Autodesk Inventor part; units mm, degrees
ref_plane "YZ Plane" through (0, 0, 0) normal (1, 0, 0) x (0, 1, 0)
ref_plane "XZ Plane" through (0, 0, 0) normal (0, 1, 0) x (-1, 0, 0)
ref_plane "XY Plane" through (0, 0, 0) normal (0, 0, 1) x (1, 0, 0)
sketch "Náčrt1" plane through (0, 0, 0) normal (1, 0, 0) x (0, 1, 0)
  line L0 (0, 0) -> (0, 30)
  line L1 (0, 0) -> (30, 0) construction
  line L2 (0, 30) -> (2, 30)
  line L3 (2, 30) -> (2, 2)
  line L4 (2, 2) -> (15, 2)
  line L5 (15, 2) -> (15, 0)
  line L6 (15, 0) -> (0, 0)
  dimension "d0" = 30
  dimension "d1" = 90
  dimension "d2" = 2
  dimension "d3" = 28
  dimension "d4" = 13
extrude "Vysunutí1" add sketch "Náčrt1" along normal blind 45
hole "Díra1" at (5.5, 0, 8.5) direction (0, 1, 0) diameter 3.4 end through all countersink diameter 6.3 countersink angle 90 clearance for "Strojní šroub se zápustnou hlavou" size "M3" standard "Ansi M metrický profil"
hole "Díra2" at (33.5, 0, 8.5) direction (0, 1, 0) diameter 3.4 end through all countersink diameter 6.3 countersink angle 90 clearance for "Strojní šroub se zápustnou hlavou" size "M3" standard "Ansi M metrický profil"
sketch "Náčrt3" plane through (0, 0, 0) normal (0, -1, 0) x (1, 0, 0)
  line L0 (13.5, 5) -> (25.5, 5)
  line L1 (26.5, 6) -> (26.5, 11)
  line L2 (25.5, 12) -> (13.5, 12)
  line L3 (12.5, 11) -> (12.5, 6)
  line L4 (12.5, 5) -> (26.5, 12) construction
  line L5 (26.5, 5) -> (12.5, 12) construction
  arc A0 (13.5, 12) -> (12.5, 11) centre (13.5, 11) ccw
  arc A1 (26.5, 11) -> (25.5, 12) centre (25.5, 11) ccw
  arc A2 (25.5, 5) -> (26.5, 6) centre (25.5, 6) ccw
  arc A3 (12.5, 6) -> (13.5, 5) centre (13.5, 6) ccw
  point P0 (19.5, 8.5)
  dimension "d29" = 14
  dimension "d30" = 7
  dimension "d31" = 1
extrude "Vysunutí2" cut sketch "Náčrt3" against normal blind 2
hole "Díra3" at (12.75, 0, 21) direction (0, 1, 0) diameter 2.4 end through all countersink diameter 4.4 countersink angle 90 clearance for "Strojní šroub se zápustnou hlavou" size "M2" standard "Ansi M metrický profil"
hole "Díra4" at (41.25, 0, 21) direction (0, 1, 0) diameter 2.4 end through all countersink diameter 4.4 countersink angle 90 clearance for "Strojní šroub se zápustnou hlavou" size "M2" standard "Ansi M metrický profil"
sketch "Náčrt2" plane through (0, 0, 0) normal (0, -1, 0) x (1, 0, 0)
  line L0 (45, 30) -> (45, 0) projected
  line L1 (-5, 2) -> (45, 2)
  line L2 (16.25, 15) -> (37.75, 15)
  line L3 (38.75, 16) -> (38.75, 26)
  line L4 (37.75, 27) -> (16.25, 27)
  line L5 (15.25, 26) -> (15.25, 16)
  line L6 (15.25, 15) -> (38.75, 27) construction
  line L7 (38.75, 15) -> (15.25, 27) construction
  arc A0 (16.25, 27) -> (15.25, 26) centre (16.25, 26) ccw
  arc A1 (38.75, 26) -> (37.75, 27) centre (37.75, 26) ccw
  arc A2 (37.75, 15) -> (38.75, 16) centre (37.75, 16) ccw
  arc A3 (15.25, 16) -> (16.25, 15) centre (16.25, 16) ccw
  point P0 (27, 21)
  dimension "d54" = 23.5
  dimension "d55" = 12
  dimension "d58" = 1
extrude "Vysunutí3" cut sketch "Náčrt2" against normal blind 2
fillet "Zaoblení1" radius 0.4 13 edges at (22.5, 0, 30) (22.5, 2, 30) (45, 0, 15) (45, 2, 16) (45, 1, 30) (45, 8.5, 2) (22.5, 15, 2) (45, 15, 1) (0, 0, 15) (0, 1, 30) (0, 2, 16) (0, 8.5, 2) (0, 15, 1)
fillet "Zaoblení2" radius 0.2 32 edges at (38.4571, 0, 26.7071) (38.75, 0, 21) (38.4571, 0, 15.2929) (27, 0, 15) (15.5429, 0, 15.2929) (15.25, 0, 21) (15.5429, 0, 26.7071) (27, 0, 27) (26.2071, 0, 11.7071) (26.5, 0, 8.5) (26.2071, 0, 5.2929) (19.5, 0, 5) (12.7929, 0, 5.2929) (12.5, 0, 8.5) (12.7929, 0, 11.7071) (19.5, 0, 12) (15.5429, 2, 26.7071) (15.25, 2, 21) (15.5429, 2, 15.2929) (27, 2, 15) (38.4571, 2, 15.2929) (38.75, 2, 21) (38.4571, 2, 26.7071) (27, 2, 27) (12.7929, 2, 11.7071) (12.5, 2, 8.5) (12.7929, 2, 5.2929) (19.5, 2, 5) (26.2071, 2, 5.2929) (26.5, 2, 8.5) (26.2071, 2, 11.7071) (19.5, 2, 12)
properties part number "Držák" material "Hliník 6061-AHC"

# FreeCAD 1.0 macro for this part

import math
import FreeCAD as App
import Part
import Sketcher


def edges_at(feature, points):
    """Names of the edges that pass closest to the given points."""
    edges = feature.Shape.Edges
    near = lambda p: min(range(len(edges)), key=lambda i: edges[i].distToShape(Part.Vertex(*p))[0])
    return sorted({f"Edge{near(p) + 1}" for p in points})


def add_polygon(sketch, points):
    """Adds a closed chain of lines whose ends are joined by coincident constraints."""
    first, n = sketch.GeometryCount, len(points)
    for a, b in zip(points, points[1:] + points[:1]):
        sketch.addGeometry(Part.LineSegment(App.Vector(*a, 0), App.Vector(*b, 0)), False)
    for i in range(n):
        sketch.addConstraint(Sketcher.Constraint("Coincident", first + i, 2, first + (i + 1) % n, 1))

doc = App.newDocument("Part")
params = doc.addObject("Spreadsheet::Sheet", "Params")
for row, (alias, value) in enumerate([
    ("sketch1_width", "13 mm"),
    ("sketch1_width2", "2 mm"),
    ("sketch1_height", "30 mm"),
    ("pad1_length", "45 mm"),
    ("sketch2_diameter", "3.4 mm"),
    ("hole_diameter", "3.4 mm"),
    ("hole_csink_diameter", "6.3 mm"),
    ("sketch3_diameter", "3.4 mm"),
    ("hole2_diameter", "3.4 mm"),
    ("hole2_csink_diameter", "6.3 mm"),
    ("sketch4_radius", "1 mm"),
    ("sketch4_width", "12 mm"),
    ("pocket1_length", "2 mm"),
    ("sketch5_diameter", "2.4 mm"),
    ("hole3_diameter", "2.4 mm"),
    ("hole3_csink_diameter", "4.4 mm"),
    ("sketch6_diameter", "2.4 mm"),
    ("hole4_diameter", "2.4 mm"),
    ("hole4_csink_diameter", "4.4 mm"),
    ("sketch7_radius", "1 mm"),
    ("sketch7_width", "21.5 mm"),
    ("pocket2_length", "2 mm"),
    ("fillet_radius", "0.4 mm"),
    ("fillet2_radius", "0.2 mm"),
], start=1):
    params.set(f"A{row}", alias)
    params.set(f"B{row}", "=" + value)
    params.setAlias(f"B{row}", alias)

body = doc.addObject("PartDesign::Body", "Body")

sketch1 = doc.addObject("Sketcher::SketchObject", "Sketch")
body.addObject(sketch1)
sketch1.AttachmentSupport = (doc.YZ_Plane, [""])
sketch1.MapMode = "FlatFace"
add_polygon(sketch1, [(0, 30), (0, 0), (15, 0), (15, 2), (2, 2), (2, 30)])
sketch1.addConstraint(Sketcher.Constraint("Vertical", 0))
sketch1.addConstraint(Sketcher.Constraint("Horizontal", 1))
sketch1.addConstraint(Sketcher.Constraint("Vertical", 2))
sketch1.addConstraint(Sketcher.Constraint("Horizontal", 3))
sketch1.addConstraint(Sketcher.Constraint("Vertical", 4))
sketch1.addConstraint(Sketcher.Constraint("Horizontal", 5))
sketch1.addConstraint(Sketcher.Constraint("Coincident", 0, 2, -1, 1))
sketch1.addConstraint(Sketcher.Constraint("Equal", 5, 2))
sketch1.addConstraint(Sketcher.Constraint("DistanceX", 3, 2, 3, 1, 13.0))
sketch1.addConstraint(Sketcher.Constraint("DistanceX", 5, 2, 5, 1, 2.0))
sketch1.addConstraint(Sketcher.Constraint("DistanceY", 0, 2, 0, 1, 30.0))
sketch1.setExpression("Constraints[14]", "Params.sketch1_width")
sketch1.setExpression("Constraints[15]", "Params.sketch1_width2")
sketch1.setExpression("Constraints[16]", "Params.sketch1_height")
pad1 = doc.addObject("PartDesign::Pad", "Pad")
body.addObject(pad1)
pad1.Profile = sketch1
pad1.setExpression("Length", "Params.pad1_length")

sketch2 = doc.addObject("Sketcher::SketchObject", "Sketch001")
body.addObject(sketch2)
sketch2.AttachmentSupport = (doc.XZ_Plane, [""])
sketch2.MapMode = "FlatFace"
sketch2.addGeometry(Part.Circle(App.Vector(5.5, 8.5, 0), App.Vector(0, 0, 1), 1.7), False)
sketch2.addConstraint(Sketcher.Constraint("Diameter", 0, 3.4))
sketch2.addConstraint(Sketcher.Constraint("DistanceX", -1, 1, 0, 3, 5.5))
sketch2.addConstraint(Sketcher.Constraint("DistanceY", -1, 1, 0, 3, 8.5))
sketch2.setExpression("Constraints[0]", "Params.sketch2_diameter")
doc.recompute()
hole = doc.addObject("PartDesign::Hole", "Hole")
body.addObject(hole)
hole.Profile = sketch2
hole.ThreadType = "None"
hole.setExpression("Diameter", "Params.hole_diameter")
hole.DepthType = "ThroughAll"
hole.HoleCutType = "Countersink"
hole.setExpression("HoleCutDiameter", "Params.hole_csink_diameter")
hole.HoleCutCountersinkAngle = 90

sketch3 = doc.addObject("Sketcher::SketchObject", "Sketch002")
body.addObject(sketch3)
sketch3.AttachmentSupport = (doc.XZ_Plane, [""])
sketch3.MapMode = "FlatFace"
sketch3.addGeometry(Part.Circle(App.Vector(33.5, 8.5, 0), App.Vector(0, 0, 1), 1.7), False)
sketch3.addConstraint(Sketcher.Constraint("Diameter", 0, 3.4))
sketch3.addConstraint(Sketcher.Constraint("DistanceX", -1, 1, 0, 3, 33.5))
sketch3.addConstraint(Sketcher.Constraint("DistanceY", -1, 1, 0, 3, 8.5))
sketch3.setExpression("Constraints[0]", "Params.sketch3_diameter")
doc.recompute()
hole2 = doc.addObject("PartDesign::Hole", "Hole001")
body.addObject(hole2)
hole2.Profile = sketch3
hole2.ThreadType = "None"
hole2.setExpression("Diameter", "Params.hole2_diameter")
hole2.DepthType = "ThroughAll"
hole2.HoleCutType = "Countersink"
hole2.setExpression("HoleCutDiameter", "Params.hole2_csink_diameter")
hole2.HoleCutCountersinkAngle = 90

sketch4 = doc.addObject("Sketcher::SketchObject", "Sketch003")
body.addObject(sketch4)
sketch4.AttachmentSupport = (doc.XZ_Plane, [""])
sketch4.MapMode = "FlatFace"
sketch4.addGeometry(Part.ArcOfCircle(Part.Circle(App.Vector(13.5, 6, 0), App.Vector(0, 0, 1), 1), math.radians(180), math.radians(270)), False)
sketch4.addGeometry(Part.LineSegment(App.Vector(13.5, 5, 0), App.Vector(25.5, 5, 0)), False)
sketch4.addGeometry(Part.ArcOfCircle(Part.Circle(App.Vector(25.5, 6, 0), App.Vector(0, 0, 1), 1), math.radians(-90), math.radians(0)), False)
sketch4.addGeometry(Part.LineSegment(App.Vector(26.5, 6, 0), App.Vector(26.5, 11, 0)), False)
sketch4.addGeometry(Part.ArcOfCircle(Part.Circle(App.Vector(25.5, 11, 0), App.Vector(0, 0, 1), 1), math.radians(0), math.radians(90)), False)
sketch4.addGeometry(Part.LineSegment(App.Vector(25.5, 12, 0), App.Vector(13.5, 12, 0)), False)
sketch4.addGeometry(Part.ArcOfCircle(Part.Circle(App.Vector(13.5, 11, 0), App.Vector(0, 0, 1), 1), math.radians(90), math.radians(180)), False)
sketch4.addGeometry(Part.LineSegment(App.Vector(12.5, 11, 0), App.Vector(12.5, 6, 0)), False)
sketch4.addConstraint(Sketcher.Constraint("Tangent", 0, 2, 1, 1))
sketch4.addConstraint(Sketcher.Constraint("Tangent", 1, 2, 2, 1))
sketch4.addConstraint(Sketcher.Constraint("Tangent", 2, 2, 3, 1))
sketch4.addConstraint(Sketcher.Constraint("Tangent", 3, 2, 4, 1))
sketch4.addConstraint(Sketcher.Constraint("Tangent", 4, 2, 5, 1))
sketch4.addConstraint(Sketcher.Constraint("Tangent", 5, 2, 6, 1))
sketch4.addConstraint(Sketcher.Constraint("Tangent", 6, 2, 7, 1))
sketch4.addConstraint(Sketcher.Constraint("Tangent", 7, 2, 0, 1))
sketch4.addConstraint(Sketcher.Constraint("Horizontal", 1))
sketch4.addConstraint(Sketcher.Constraint("Vertical", 3))
sketch4.addConstraint(Sketcher.Constraint("Horizontal", 5))
sketch4.addConstraint(Sketcher.Constraint("Vertical", 7))
sketch4.addConstraint(Sketcher.Constraint("Equal", 0, 2))
sketch4.addConstraint(Sketcher.Constraint("Equal", 2, 4))
sketch4.addConstraint(Sketcher.Constraint("Equal", 4, 6))
sketch4.addConstraint(Sketcher.Constraint("Radius", 0, 1.0))
sketch4.addConstraint(Sketcher.Constraint("DistanceY", 1, 2, 4, 2, 7.0))
sketch4.addConstraint(Sketcher.Constraint("DistanceX", 1, 1, 1, 2, 12.0))
sketch4.addConstraint(Sketcher.Constraint("DistanceY", -1, 1, 0, 3, 6.0))
sketch4.addConstraint(Sketcher.Constraint("DistanceX", -1, 1, 0, 3, 13.5))
sketch4.setExpression("Constraints[15]", "Params.sketch4_radius")
sketch4.setExpression("Constraints[17]", "Params.sketch4_width")
pocket1 = doc.addObject("PartDesign::Pocket", "Pocket")
body.addObject(pocket1)
pocket1.Profile = sketch4
pocket1.setExpression("Length", "Params.pocket1_length")

sketch5 = doc.addObject("Sketcher::SketchObject", "Sketch004")
body.addObject(sketch5)
sketch5.AttachmentSupport = (doc.XZ_Plane, [""])
sketch5.MapMode = "FlatFace"
sketch5.addGeometry(Part.Circle(App.Vector(12.8, 21, 0), App.Vector(0, 0, 1), 1.2), False)
sketch5.addConstraint(Sketcher.Constraint("Diameter", 0, 2.4))
sketch5.addConstraint(Sketcher.Constraint("DistanceY", -1, 1, 0, 3, 21.0))
sketch5.addConstraint(Sketcher.Constraint("DistanceX", -1, 1, 0, 3, 12.75))
sketch5.setExpression("Constraints[0]", "Params.sketch5_diameter")
doc.recompute()
hole3 = doc.addObject("PartDesign::Hole", "Hole002")
body.addObject(hole3)
hole3.Profile = sketch5
hole3.ThreadType = "None"
hole3.setExpression("Diameter", "Params.hole3_diameter")
hole3.DepthType = "ThroughAll"
hole3.HoleCutType = "Countersink"
hole3.setExpression("HoleCutDiameter", "Params.hole3_csink_diameter")
hole3.HoleCutCountersinkAngle = 90

sketch6 = doc.addObject("Sketcher::SketchObject", "Sketch005")
body.addObject(sketch6)
sketch6.AttachmentSupport = (doc.XZ_Plane, [""])
sketch6.MapMode = "FlatFace"
sketch6.addGeometry(Part.Circle(App.Vector(41.2, 21, 0), App.Vector(0, 0, 1), 1.2), False)
sketch6.addConstraint(Sketcher.Constraint("Diameter", 0, 2.4))
sketch6.addConstraint(Sketcher.Constraint("DistanceY", -1, 1, 0, 3, 21.0))
sketch6.addConstraint(Sketcher.Constraint("DistanceX", -1, 1, 0, 3, 41.25))
sketch6.setExpression("Constraints[0]", "Params.sketch6_diameter")
doc.recompute()
hole4 = doc.addObject("PartDesign::Hole", "Hole003")
body.addObject(hole4)
hole4.Profile = sketch6
hole4.ThreadType = "None"
hole4.setExpression("Diameter", "Params.hole4_diameter")
hole4.DepthType = "ThroughAll"
hole4.HoleCutType = "Countersink"
hole4.setExpression("HoleCutDiameter", "Params.hole4_csink_diameter")
hole4.HoleCutCountersinkAngle = 90

sketch7 = doc.addObject("Sketcher::SketchObject", "Sketch006")
body.addObject(sketch7)
sketch7.AttachmentSupport = (doc.XZ_Plane, [""])
sketch7.MapMode = "FlatFace"
sketch7.addGeometry(Part.ArcOfCircle(Part.Circle(App.Vector(16.2, 16, 0), App.Vector(0, 0, 1), 1), math.radians(180), math.radians(270)), False)
sketch7.addGeometry(Part.LineSegment(App.Vector(16.2, 15, 0), App.Vector(37.8, 15, 0)), False)
sketch7.addGeometry(Part.ArcOfCircle(Part.Circle(App.Vector(37.8, 16, 0), App.Vector(0, 0, 1), 1), math.radians(-90), math.radians(0)), False)
sketch7.addGeometry(Part.LineSegment(App.Vector(38.8, 16, 0), App.Vector(38.8, 26, 0)), False)
sketch7.addGeometry(Part.ArcOfCircle(Part.Circle(App.Vector(37.8, 26, 0), App.Vector(0, 0, 1), 1), math.radians(0), math.radians(90)), False)
sketch7.addGeometry(Part.LineSegment(App.Vector(37.8, 27, 0), App.Vector(16.2, 27, 0)), False)
sketch7.addGeometry(Part.ArcOfCircle(Part.Circle(App.Vector(16.2, 26, 0), App.Vector(0, 0, 1), 1), math.radians(90), math.radians(180)), False)
sketch7.addGeometry(Part.LineSegment(App.Vector(15.2, 26, 0), App.Vector(15.2, 16, 0)), False)
sketch7.addConstraint(Sketcher.Constraint("Tangent", 0, 2, 1, 1))
sketch7.addConstraint(Sketcher.Constraint("Tangent", 1, 2, 2, 1))
sketch7.addConstraint(Sketcher.Constraint("Tangent", 2, 2, 3, 1))
sketch7.addConstraint(Sketcher.Constraint("Tangent", 3, 2, 4, 1))
sketch7.addConstraint(Sketcher.Constraint("Tangent", 4, 2, 5, 1))
sketch7.addConstraint(Sketcher.Constraint("Tangent", 5, 2, 6, 1))
sketch7.addConstraint(Sketcher.Constraint("Tangent", 6, 2, 7, 1))
sketch7.addConstraint(Sketcher.Constraint("Tangent", 7, 2, 0, 1))
sketch7.addConstraint(Sketcher.Constraint("Horizontal", 1))
sketch7.addConstraint(Sketcher.Constraint("Vertical", 3))
sketch7.addConstraint(Sketcher.Constraint("Horizontal", 5))
sketch7.addConstraint(Sketcher.Constraint("Vertical", 7))
sketch7.addConstraint(Sketcher.Constraint("Equal", 0, 2))
sketch7.addConstraint(Sketcher.Constraint("Equal", 2, 4))
sketch7.addConstraint(Sketcher.Constraint("Equal", 4, 6))
sketch7.addConstraint(Sketcher.Constraint("Radius", 0, 1.0))
sketch7.addConstraint(Sketcher.Constraint("DistanceY", 1, 2, 4, 2, 12.0))
sketch7.addConstraint(Sketcher.Constraint("DistanceX", 1, 1, 1, 2, 21.5))
sketch7.addConstraint(Sketcher.Constraint("DistanceY", -1, 1, 0, 3, 16.0))
sketch7.addConstraint(Sketcher.Constraint("DistanceX", -1, 1, 0, 3, 16.25))
sketch7.setExpression("Constraints[15]", "Params.sketch7_radius")
sketch7.setExpression("Constraints[17]", "Params.sketch7_width")
pocket2 = doc.addObject("PartDesign::Pocket", "Pocket001")
body.addObject(pocket2)
pocket2.Profile = sketch7
pocket2.setExpression("Length", "Params.pocket2_length")
doc.recompute()

fillet = doc.addObject("PartDesign::Fillet", "Fillet")
body.addObject(fillet)
fillet.Base = (pocket2, edges_at(pocket2, [
    (22.5, 0, 30),
    (22.5, 2, 30),
    (45, 0, 15),
    (45, 2, 16),
    (45, 1, 30),
    (45, 8.5, 2),
    (22.5, 15, 2),
    (45, 15, 1),
    (0, 0, 15),
    (0, 1, 30),
    (0, 2, 16),
    (0, 8.5, 2),
    (0, 15, 1),
]))
fillet.setExpression("Radius", "Params.fillet_radius")
doc.recompute()

fillet2 = doc.addObject("PartDesign::Fillet", "Fillet001")
body.addObject(fillet2)
fillet2.Base = (fillet, edges_at(fillet, [
    (38.457, 0, 26.707),
    (38.75, 0, 21),
    (38.457, 0, 15.293),
    (27, 0, 15),
    (15.543, 0, 15.293),
    (15.25, 0, 21),
    (15.543, 0, 26.707),
    (27, 0, 27),
    (26.207, 0, 11.707),
    (26.5, 0, 8.5),
    (26.207, 0, 5.293),
    (19.5, 0, 5),
    (12.793, 0, 5.293),
    (12.5, 0, 8.5),
    (12.793, 0, 11.707),
    (19.5, 0, 12),
    (15.543, 2, 26.707),
    (15.25, 2, 21),
    (15.543, 2, 15.293),
    (27, 2, 15),
    (38.457, 2, 15.293),
    (38.75, 2, 21),
    (38.457, 2, 26.707),
    (27, 2, 27),
    (12.793, 2, 11.707),
    (12.5, 2, 8.5),
    (12.793, 2, 5.293),
    (19.5, 2, 5),
    (26.207, 2, 5.293),
    (26.5, 2, 8.5),
    (26.207, 2, 11.707),
    (19.5, 2, 12),
]))
fillet2.setExpression("Radius", "Params.fillet2_radius")

doc.recompute()
